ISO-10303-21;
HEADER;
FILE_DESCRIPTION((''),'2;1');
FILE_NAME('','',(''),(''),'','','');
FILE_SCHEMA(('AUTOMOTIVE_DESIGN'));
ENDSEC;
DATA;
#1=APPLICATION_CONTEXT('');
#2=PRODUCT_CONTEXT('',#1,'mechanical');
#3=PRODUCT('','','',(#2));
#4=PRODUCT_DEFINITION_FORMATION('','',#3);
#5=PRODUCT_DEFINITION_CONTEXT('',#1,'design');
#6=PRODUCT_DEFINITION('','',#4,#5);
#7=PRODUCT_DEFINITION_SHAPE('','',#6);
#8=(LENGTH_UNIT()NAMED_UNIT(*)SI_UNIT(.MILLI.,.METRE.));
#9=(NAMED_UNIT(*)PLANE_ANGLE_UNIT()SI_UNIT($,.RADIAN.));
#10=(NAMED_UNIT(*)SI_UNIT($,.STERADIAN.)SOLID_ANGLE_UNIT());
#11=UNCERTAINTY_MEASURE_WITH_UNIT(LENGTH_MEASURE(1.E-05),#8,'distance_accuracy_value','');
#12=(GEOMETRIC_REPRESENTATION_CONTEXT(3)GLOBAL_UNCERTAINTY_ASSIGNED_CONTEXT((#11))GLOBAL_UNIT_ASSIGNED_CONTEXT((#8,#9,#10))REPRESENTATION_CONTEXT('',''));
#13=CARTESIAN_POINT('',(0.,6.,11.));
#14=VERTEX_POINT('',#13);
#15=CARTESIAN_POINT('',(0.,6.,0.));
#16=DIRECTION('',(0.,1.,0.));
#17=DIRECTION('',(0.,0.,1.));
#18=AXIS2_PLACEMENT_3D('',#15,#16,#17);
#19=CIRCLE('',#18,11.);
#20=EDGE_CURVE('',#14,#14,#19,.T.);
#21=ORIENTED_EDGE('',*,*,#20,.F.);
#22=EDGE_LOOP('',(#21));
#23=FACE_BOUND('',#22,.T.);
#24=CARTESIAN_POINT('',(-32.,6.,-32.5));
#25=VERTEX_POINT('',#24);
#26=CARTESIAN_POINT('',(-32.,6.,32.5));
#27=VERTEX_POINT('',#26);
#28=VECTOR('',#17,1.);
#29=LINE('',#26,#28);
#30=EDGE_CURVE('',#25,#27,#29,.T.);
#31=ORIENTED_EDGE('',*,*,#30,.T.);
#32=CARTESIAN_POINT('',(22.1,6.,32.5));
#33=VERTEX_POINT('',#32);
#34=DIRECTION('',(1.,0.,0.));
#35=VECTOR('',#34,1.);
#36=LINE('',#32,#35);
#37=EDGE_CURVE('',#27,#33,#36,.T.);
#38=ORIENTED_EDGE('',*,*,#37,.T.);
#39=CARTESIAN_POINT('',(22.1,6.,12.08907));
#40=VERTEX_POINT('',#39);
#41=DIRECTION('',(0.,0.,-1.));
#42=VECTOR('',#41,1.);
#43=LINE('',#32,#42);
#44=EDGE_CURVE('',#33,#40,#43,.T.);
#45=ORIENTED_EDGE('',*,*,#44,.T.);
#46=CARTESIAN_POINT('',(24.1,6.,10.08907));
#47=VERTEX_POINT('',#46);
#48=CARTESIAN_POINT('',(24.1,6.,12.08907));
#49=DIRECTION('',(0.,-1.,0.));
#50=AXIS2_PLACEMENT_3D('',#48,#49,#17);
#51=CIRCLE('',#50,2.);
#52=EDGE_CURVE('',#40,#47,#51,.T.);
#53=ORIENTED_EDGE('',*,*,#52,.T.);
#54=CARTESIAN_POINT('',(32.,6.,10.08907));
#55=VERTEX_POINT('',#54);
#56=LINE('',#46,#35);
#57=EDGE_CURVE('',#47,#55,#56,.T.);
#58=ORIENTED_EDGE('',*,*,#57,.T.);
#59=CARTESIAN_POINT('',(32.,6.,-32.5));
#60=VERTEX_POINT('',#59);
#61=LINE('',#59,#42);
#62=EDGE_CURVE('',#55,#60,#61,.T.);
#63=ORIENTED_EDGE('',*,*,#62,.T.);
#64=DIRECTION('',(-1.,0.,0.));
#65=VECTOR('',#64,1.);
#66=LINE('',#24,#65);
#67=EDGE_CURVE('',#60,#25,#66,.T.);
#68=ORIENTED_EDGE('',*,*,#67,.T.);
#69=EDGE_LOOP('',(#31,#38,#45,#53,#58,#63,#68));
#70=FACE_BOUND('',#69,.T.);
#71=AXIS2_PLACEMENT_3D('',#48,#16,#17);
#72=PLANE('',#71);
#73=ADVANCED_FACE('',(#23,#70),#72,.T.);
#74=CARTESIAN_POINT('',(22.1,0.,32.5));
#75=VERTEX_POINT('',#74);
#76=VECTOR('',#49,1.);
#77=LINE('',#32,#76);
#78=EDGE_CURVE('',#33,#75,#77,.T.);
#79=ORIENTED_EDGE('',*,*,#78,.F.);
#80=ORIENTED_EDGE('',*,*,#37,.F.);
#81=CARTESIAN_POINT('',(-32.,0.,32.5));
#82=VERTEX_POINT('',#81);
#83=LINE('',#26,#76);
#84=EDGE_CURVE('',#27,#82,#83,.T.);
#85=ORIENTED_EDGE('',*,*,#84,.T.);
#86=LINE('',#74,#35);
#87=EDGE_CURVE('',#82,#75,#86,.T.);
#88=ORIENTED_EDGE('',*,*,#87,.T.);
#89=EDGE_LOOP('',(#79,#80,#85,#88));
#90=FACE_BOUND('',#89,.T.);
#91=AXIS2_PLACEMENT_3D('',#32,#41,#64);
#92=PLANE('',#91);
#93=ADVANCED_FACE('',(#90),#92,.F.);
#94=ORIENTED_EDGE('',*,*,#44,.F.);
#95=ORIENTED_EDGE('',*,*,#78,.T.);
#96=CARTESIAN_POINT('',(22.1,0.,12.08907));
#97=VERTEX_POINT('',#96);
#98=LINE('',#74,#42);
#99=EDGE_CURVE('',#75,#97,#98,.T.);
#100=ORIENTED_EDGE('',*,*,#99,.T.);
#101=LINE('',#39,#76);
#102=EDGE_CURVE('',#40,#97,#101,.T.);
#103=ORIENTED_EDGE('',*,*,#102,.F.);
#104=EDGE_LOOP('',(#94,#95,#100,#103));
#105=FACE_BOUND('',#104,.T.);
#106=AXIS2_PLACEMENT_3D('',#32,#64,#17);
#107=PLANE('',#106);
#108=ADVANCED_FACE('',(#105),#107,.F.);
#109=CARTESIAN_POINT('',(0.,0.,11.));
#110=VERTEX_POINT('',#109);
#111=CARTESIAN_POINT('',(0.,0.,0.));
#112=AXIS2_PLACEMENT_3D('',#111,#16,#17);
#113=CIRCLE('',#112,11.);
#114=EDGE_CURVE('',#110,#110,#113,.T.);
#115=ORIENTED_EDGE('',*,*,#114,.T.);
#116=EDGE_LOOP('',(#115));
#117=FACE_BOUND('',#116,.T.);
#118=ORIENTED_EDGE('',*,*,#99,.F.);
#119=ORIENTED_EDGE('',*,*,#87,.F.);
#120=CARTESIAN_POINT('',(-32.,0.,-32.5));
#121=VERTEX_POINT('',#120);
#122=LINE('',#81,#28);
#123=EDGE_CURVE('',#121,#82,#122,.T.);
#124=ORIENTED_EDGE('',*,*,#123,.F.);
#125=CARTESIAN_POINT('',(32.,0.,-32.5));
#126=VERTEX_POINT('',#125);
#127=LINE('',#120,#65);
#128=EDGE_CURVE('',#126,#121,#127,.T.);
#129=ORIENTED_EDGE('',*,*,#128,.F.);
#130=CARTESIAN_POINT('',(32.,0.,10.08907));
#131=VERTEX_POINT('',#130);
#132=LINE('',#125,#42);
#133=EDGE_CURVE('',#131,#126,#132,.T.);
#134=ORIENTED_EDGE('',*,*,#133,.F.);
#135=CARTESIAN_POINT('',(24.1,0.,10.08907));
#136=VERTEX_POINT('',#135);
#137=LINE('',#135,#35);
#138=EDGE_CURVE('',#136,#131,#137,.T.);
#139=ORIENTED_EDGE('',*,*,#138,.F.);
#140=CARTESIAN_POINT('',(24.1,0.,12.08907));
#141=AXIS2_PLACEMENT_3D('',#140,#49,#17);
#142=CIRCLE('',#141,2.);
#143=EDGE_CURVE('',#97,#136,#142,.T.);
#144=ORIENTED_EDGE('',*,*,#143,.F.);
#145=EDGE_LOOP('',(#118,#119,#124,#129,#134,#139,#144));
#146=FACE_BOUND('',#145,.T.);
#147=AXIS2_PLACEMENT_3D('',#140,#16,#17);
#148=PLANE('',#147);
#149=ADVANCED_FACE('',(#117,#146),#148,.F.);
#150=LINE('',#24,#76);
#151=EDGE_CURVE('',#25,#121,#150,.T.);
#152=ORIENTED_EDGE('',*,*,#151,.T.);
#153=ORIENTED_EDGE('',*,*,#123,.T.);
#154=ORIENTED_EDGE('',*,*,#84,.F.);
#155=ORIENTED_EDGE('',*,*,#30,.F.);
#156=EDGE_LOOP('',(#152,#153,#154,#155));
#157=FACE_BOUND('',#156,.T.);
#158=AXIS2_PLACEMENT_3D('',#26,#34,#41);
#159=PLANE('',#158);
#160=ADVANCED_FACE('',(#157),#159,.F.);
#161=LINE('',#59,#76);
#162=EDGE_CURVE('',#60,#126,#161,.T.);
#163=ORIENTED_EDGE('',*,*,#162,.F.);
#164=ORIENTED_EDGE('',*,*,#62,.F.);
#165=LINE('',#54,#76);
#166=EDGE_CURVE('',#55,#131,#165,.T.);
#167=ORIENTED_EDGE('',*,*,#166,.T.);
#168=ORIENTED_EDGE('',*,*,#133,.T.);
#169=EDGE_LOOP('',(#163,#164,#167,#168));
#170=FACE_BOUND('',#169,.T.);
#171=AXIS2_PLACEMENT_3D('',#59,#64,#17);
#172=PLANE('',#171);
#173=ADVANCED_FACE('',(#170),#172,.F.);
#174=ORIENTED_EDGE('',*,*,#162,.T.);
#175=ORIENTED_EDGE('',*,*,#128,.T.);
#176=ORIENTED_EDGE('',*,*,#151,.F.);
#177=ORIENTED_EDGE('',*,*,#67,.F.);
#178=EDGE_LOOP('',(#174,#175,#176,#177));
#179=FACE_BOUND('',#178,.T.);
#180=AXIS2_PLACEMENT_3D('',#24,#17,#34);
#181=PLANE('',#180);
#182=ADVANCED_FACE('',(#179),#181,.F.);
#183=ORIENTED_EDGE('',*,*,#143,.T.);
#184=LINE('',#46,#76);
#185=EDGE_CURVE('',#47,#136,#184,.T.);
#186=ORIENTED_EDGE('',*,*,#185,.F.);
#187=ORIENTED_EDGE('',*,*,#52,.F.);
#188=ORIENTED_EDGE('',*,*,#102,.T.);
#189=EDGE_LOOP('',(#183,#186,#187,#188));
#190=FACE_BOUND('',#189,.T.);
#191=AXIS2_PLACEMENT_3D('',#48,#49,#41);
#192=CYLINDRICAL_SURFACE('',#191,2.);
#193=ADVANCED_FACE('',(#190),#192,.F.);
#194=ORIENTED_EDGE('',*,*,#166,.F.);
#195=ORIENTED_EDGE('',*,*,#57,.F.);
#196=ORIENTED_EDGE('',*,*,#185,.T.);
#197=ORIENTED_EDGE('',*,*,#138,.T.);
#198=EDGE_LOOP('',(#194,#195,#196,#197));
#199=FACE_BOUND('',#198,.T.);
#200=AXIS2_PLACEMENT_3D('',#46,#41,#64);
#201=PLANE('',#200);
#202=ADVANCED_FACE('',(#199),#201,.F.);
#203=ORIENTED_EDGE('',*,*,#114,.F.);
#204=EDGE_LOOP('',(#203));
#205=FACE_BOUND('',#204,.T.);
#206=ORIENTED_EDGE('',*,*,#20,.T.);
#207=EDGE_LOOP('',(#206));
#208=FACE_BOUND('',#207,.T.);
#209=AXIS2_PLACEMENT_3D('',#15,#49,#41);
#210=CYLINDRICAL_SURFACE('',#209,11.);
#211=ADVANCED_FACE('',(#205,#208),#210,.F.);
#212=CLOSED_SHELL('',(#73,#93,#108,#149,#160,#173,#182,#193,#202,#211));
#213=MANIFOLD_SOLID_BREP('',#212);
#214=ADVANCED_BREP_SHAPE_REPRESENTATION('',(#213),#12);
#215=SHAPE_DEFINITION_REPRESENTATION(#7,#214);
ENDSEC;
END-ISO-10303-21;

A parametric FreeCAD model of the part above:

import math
import FreeCAD as App
import Part
import Sketcher

V = App.Vector
Q = App.Units.Quantity

doc = App.newDocument("Part")
body = doc.addObject("PartDesign::Body", "Body")

sketch1 = doc.addObject("Sketcher::SketchObject", "Sketch")
body.addObject(sketch1)
sketch1.AttachmentSupport = (doc.XZ_Plane, [""])
sketch1.MapMode = "FlatFace"
sketch1.addGeometry([
    Part.LineSegment(V(-32, 32.5, 0), V(22.1, 32.5, 0)),
    Part.LineSegment(V(22.1, 32.5, 0), V(22.1, 12.08907, 0)),
    Part.ArcOfCircle(Part.Circle(V(24.1, 12.08907, 0), V(0, 0, 1), 2), math.radians(-180), math.radians(-90.000014)),
    Part.LineSegment(V(24.1, 10.08907, 0), V(32, 10.08907, 0)),
    Part.LineSegment(V(32, 10.08907, 0), V(32, -32.5, 0)),
    Part.LineSegment(V(32, -32.5, 0), V(-32, -32.5, 0)),
    Part.LineSegment(V(-32, -32.5, 0), V(-32, 32.5, 0)),
    Part.Circle(V(0, 0, 0), V(0, 0, 1), 11),
], False)
sketch1.addConstraint([
    Sketcher.Constraint("Coincident", 0, 2, 1, 1),
    Sketcher.Constraint("Tangent", 1, 2, 2, 1),
    Sketcher.Constraint("Tangent", 2, 2, 3, 1),
    Sketcher.Constraint("Coincident", 3, 2, 4, 1),
    Sketcher.Constraint("Coincident", 4, 2, 5, 1),
    Sketcher.Constraint("Coincident", 5, 2, 6, 1),
    Sketcher.Constraint("Coincident", 6, 2, 0, 1),
    Sketcher.Constraint("Horizontal", 0),
    Sketcher.Constraint("Vertical", 1),
    Sketcher.Constraint("Horizontal", 3),
    Sketcher.Constraint("Vertical", 4),
    Sketcher.Constraint("Horizontal", 5),
    Sketcher.Constraint("Vertical", 6),
    Sketcher.Constraint("Coincident", 7, 3, -1, 1),
    Sketcher.Constraint("Symmetric", 4, 2, 6, 2, -1, 1),
    Sketcher.Constraint("Diameter", 7, Q("22 mm")),
    Sketcher.Constraint("Radius", 2, Q("2 mm")),
    Sketcher.Constraint("DistanceX", 5, 2, 5, 1, Q("64 mm")),
    Sketcher.Constraint("DistanceY", 6, 1, 6, 2, Q("65 mm")),
    Sketcher.Constraint("DistanceX", 0, 1, 0, 2, Q("54.1 mm")),
    Sketcher.Constraint("DistanceY", 1, 2, 1, 1, Q("20.41093 mm")),
])
pad1 = doc.addObject("PartDesign::Pad", "Pad")
body.addObject(pad1)
pad1.Profile = sketch1
pad1.Length = 6
pad1.Reversed = True

doc.recompute()
